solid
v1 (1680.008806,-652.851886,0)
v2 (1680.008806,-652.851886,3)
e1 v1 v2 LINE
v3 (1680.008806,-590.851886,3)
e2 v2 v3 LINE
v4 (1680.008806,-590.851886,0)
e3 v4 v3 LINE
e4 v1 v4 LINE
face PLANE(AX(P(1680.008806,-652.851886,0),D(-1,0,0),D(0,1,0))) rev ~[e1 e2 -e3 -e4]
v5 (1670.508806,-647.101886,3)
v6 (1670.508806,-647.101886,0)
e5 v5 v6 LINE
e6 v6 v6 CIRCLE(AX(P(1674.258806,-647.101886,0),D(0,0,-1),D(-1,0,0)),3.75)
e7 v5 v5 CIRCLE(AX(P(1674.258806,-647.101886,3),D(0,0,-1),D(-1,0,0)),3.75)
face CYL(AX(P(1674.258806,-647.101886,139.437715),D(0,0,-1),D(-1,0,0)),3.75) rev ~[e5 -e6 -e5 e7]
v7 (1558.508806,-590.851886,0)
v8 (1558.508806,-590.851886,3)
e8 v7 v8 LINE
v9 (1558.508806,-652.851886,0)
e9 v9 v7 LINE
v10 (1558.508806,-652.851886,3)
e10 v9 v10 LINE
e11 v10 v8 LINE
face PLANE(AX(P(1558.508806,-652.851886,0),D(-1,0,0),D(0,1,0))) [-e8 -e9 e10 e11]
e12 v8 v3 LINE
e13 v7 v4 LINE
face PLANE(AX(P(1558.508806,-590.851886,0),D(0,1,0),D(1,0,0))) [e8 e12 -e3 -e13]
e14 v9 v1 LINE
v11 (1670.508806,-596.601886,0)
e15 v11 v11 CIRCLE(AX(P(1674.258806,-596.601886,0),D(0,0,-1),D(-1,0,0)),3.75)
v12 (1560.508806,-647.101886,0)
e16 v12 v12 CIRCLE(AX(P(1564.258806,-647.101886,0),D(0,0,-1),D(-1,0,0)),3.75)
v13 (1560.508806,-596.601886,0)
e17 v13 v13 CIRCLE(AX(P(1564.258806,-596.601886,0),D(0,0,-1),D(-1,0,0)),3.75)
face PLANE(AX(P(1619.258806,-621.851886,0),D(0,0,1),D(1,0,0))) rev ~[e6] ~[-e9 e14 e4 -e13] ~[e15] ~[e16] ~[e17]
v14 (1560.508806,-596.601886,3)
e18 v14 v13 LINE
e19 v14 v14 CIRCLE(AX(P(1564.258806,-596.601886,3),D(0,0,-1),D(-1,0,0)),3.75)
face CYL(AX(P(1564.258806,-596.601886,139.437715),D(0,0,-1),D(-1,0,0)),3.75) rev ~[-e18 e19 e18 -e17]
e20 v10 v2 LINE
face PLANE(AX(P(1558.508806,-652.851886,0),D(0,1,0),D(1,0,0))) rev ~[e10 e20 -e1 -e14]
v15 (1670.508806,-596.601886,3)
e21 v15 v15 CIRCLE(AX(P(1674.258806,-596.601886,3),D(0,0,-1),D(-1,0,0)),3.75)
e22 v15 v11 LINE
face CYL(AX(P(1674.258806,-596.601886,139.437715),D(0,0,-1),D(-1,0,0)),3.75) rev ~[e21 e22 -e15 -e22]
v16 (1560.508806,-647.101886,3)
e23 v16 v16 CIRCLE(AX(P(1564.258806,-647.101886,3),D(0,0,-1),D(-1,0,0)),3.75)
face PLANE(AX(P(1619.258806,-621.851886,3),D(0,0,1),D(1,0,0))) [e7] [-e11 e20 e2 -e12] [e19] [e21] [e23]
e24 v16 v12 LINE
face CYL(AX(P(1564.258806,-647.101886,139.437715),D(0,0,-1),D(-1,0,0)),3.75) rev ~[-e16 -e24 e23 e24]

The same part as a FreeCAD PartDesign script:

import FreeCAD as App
import Part
import Sketcher

V = App.Vector
Q = App.Units.Quantity

doc = App.newDocument("Part")
body = doc.addObject("PartDesign::Body", "Body")

# Sketch on XY plane
sketch1 = doc.addObject("Sketcher::SketchObject", "Sketch")
body.addObject(sketch1)
sketch1.AttachmentSupport = (doc.XY_Plane, [""])
sketch1.MapMode = "FlatFace"
sketch1.addGeometry([
    Part.LineSegment(V(1559, -591, 0), V(1559, -653, 0)),
    Part.LineSegment(V(1559, -653, 0), V(1680, -653, 0)),
    Part.LineSegment(V(1680, -653, 0), V(1680, -591, 0)),
    Part.LineSegment(V(1680, -591, 0), V(1559, -591, 0)),
], False)
sketch1.addConstraint([
    Sketcher.Constraint("Coincident", 0, 2, 1, 1),
    Sketcher.Constraint("Coincident", 1, 2, 2, 1),
    Sketcher.Constraint("Coincident", 2, 2, 3, 1),
    Sketcher.Constraint("Coincident", 3, 2, 0, 1),
    Sketcher.Constraint("Vertical", 0),
    Sketcher.Constraint("Horizontal", 1),
    Sketcher.Constraint("Vertical", 2),
    Sketcher.Constraint("Horizontal", 3),
    Sketcher.Constraint("DistanceY", 0, 2, 0, 1, Q("62 mm")),
    Sketcher.Constraint("DistanceX", 1, 1, 1, 2, Q("121.5 mm")),
    Sketcher.Constraint("DistanceX", -1, 1, 0, 2, Q("1558.508806 mm")),
    Sketcher.Constraint("DistanceY", 0, 2, -1, 1, Q("652.851886 mm")),
])
pad1 = doc.addObject("PartDesign::Pad", "Pad")
body.addObject(pad1)
pad1.Profile = sketch1
pad1.Length = 3

# Sketch on XY plane
sketch2 = doc.addObject("Sketcher::SketchObject", "Sketch001")
body.addObject(sketch2)
sketch2.AttachmentSupport = (doc.XY_Plane, [""])
sketch2.MapMode = "FlatFace"
sketch2.AttachmentOffset = App.Placement(V(0, 0, 3), App.Rotation())
sketch2.addGeometry(Part.Circle(V(1564.3, -647.1, 0), V(0, 0, 1), 3.8), False)
sketch2.addConstraint([
    Sketcher.Constraint("Diameter", 0, Q("7.5 mm")),
    Sketcher.Constraint("DistanceX", -1, 1, 0, 3, Q("1564.258806 mm")),
    Sketcher.Constraint("DistanceY", 0, 3, -1, 1, Q("647.101886 mm")),
])
doc.recompute()
hole = doc.addObject("PartDesign::Hole", "Hole")
body.addObject(hole)
hole.Profile = sketch2
hole.ThreadType = "None"
hole.Diameter = 7.5
hole.DepthType = "ThroughAll"

# Sketch on XY plane
sketch3 = doc.addObject("Sketcher::SketchObject", "Sketch002")
body.addObject(sketch3)
sketch3.AttachmentSupport = (doc.XY_Plane, [""])
sketch3.MapMode = "FlatFace"
sketch3.AttachmentOffset = App.Placement(V(0, 0, 3), App.Rotation())
sketch3.addGeometry(Part.Circle(V(1564.3, -596.6, 0), V(0, 0, 1), 3.8), False)
sketch3.addConstraint([
    Sketcher.Constraint("Diameter", 0, Q("7.5 mm")),
    Sketcher.Constraint("DistanceX", -1, 1, 0, 3, Q("1564.258806 mm")),
    Sketcher.Constraint("DistanceY", 0, 3, -1, 1, Q("596.601886 mm")),
])
doc.recompute()
hole2 = doc.addObject("PartDesign::Hole", "Hole001")
body.addObject(hole2)
hole2.Profile = sketch3
hole2.ThreadType = "None"
hole2.Diameter = 7.5
hole2.DepthType = "ThroughAll"

# Sketch on XY plane
sketch4 = doc.addObject("Sketcher::SketchObject", "Sketch003")
body.addObject(sketch4)
sketch4.AttachmentSupport = (doc.XY_Plane, [""])
sketch4.MapMode = "FlatFace"
sketch4.AttachmentOffset = App.Placement(V(0, 0, 3), App.Rotation())
sketch4.addGeometry([
    Part.Circle(V(1674.3, -596.6, 0), V(0, 0, 1), 3.8),
    Part.Circle(V(1674.3, -647.1, 0), V(0, 0, 1), 3.8),
], False)
sketch4.addConstraint([
    Sketcher.Constraint("Equal", 0, 1),
    Sketcher.Constraint("Vertical", 0, 3, 1, 3),
    Sketcher.Constraint("Diameter", 0, Q("7.5 mm")),
    Sketcher.Constraint("DistanceY", 1, 3, 0, 3, Q("50.5 mm")),
    Sketcher.Constraint("DistanceX", -1, 1, 0, 3, Q("1674.258806 mm")),
    Sketcher.Constraint("DistanceY", 0, 3, -1, 1, Q("596.601886 mm")),
])
doc.recompute()
hole3 = doc.addObject("PartDesign::Hole", "Hole002")
body.addObject(hole3)
hole3.Profile = sketch4
hole3.ThreadType = "None"
hole3.Diameter = 7.5
hole3.DepthType = "ThroughAll"

doc.recompute()
